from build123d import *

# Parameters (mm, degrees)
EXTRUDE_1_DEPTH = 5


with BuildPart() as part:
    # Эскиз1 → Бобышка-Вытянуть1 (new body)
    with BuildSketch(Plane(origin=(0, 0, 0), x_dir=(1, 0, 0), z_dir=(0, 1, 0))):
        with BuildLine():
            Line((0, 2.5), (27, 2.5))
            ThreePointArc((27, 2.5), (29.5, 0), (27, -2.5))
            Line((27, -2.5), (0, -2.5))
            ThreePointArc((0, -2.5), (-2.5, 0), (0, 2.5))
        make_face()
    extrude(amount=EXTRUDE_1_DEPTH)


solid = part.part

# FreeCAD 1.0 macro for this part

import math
import FreeCAD as App
import Part
import Sketcher
Q = App.Units.Quantity

doc = App.newDocument("Part")
body = doc.addObject("PartDesign::Body", "Body")

sketch1 = body.newObject("Sketcher::SketchObject", "Sketch")
sketch1.AttachmentSupport = (doc.getObject("XZ_Plane"), [""])
sketch1.MapMode = "FlatFace"
sketch1.addGeometry([
    Part.LineSegment(App.Vector(27, -2.5, 0), App.Vector(0, -2.5, 0)),
    Part.ArcOfCircle(Part.Circle(App.Vector(0, 0, 0), App.Vector(0, 0, 1), 2.5), math.radians(90), math.radians(270)),
    Part.LineSegment(App.Vector(0, 2.5, 0), App.Vector(27, 2.5, 0)),
    Part.ArcOfCircle(Part.Circle(App.Vector(27, 0, 0), App.Vector(0, 0, 1), 2.5), math.radians(-90), math.radians(90)),
], False)
sketch1.addConstraint([
    Sketcher.Constraint("Tangent", 0, 2, 1, 2),
    Sketcher.Constraint("Tangent", 1, 1, 2, 1),
    Sketcher.Constraint("Tangent", 2, 2, 3, 2),
    Sketcher.Constraint("Tangent", 3, 1, 0, 1),
    Sketcher.Constraint("Horizontal", 0),
    Sketcher.Constraint("Horizontal", 2),
    Sketcher.Constraint("Coincident", 1, 3, -1, 1),
    Sketcher.Constraint("Radius", 1, Q("2.5 mm")),
    Sketcher.Constraint("DistanceX", 0, 2, 0, 1, Q("27 mm")),
])
pad1 = body.newObject("PartDesign::Pad", "Pad")
pad1.Profile = sketch1
pad1.Length = 5
pad1.Reversed = True

doc.recompute()
